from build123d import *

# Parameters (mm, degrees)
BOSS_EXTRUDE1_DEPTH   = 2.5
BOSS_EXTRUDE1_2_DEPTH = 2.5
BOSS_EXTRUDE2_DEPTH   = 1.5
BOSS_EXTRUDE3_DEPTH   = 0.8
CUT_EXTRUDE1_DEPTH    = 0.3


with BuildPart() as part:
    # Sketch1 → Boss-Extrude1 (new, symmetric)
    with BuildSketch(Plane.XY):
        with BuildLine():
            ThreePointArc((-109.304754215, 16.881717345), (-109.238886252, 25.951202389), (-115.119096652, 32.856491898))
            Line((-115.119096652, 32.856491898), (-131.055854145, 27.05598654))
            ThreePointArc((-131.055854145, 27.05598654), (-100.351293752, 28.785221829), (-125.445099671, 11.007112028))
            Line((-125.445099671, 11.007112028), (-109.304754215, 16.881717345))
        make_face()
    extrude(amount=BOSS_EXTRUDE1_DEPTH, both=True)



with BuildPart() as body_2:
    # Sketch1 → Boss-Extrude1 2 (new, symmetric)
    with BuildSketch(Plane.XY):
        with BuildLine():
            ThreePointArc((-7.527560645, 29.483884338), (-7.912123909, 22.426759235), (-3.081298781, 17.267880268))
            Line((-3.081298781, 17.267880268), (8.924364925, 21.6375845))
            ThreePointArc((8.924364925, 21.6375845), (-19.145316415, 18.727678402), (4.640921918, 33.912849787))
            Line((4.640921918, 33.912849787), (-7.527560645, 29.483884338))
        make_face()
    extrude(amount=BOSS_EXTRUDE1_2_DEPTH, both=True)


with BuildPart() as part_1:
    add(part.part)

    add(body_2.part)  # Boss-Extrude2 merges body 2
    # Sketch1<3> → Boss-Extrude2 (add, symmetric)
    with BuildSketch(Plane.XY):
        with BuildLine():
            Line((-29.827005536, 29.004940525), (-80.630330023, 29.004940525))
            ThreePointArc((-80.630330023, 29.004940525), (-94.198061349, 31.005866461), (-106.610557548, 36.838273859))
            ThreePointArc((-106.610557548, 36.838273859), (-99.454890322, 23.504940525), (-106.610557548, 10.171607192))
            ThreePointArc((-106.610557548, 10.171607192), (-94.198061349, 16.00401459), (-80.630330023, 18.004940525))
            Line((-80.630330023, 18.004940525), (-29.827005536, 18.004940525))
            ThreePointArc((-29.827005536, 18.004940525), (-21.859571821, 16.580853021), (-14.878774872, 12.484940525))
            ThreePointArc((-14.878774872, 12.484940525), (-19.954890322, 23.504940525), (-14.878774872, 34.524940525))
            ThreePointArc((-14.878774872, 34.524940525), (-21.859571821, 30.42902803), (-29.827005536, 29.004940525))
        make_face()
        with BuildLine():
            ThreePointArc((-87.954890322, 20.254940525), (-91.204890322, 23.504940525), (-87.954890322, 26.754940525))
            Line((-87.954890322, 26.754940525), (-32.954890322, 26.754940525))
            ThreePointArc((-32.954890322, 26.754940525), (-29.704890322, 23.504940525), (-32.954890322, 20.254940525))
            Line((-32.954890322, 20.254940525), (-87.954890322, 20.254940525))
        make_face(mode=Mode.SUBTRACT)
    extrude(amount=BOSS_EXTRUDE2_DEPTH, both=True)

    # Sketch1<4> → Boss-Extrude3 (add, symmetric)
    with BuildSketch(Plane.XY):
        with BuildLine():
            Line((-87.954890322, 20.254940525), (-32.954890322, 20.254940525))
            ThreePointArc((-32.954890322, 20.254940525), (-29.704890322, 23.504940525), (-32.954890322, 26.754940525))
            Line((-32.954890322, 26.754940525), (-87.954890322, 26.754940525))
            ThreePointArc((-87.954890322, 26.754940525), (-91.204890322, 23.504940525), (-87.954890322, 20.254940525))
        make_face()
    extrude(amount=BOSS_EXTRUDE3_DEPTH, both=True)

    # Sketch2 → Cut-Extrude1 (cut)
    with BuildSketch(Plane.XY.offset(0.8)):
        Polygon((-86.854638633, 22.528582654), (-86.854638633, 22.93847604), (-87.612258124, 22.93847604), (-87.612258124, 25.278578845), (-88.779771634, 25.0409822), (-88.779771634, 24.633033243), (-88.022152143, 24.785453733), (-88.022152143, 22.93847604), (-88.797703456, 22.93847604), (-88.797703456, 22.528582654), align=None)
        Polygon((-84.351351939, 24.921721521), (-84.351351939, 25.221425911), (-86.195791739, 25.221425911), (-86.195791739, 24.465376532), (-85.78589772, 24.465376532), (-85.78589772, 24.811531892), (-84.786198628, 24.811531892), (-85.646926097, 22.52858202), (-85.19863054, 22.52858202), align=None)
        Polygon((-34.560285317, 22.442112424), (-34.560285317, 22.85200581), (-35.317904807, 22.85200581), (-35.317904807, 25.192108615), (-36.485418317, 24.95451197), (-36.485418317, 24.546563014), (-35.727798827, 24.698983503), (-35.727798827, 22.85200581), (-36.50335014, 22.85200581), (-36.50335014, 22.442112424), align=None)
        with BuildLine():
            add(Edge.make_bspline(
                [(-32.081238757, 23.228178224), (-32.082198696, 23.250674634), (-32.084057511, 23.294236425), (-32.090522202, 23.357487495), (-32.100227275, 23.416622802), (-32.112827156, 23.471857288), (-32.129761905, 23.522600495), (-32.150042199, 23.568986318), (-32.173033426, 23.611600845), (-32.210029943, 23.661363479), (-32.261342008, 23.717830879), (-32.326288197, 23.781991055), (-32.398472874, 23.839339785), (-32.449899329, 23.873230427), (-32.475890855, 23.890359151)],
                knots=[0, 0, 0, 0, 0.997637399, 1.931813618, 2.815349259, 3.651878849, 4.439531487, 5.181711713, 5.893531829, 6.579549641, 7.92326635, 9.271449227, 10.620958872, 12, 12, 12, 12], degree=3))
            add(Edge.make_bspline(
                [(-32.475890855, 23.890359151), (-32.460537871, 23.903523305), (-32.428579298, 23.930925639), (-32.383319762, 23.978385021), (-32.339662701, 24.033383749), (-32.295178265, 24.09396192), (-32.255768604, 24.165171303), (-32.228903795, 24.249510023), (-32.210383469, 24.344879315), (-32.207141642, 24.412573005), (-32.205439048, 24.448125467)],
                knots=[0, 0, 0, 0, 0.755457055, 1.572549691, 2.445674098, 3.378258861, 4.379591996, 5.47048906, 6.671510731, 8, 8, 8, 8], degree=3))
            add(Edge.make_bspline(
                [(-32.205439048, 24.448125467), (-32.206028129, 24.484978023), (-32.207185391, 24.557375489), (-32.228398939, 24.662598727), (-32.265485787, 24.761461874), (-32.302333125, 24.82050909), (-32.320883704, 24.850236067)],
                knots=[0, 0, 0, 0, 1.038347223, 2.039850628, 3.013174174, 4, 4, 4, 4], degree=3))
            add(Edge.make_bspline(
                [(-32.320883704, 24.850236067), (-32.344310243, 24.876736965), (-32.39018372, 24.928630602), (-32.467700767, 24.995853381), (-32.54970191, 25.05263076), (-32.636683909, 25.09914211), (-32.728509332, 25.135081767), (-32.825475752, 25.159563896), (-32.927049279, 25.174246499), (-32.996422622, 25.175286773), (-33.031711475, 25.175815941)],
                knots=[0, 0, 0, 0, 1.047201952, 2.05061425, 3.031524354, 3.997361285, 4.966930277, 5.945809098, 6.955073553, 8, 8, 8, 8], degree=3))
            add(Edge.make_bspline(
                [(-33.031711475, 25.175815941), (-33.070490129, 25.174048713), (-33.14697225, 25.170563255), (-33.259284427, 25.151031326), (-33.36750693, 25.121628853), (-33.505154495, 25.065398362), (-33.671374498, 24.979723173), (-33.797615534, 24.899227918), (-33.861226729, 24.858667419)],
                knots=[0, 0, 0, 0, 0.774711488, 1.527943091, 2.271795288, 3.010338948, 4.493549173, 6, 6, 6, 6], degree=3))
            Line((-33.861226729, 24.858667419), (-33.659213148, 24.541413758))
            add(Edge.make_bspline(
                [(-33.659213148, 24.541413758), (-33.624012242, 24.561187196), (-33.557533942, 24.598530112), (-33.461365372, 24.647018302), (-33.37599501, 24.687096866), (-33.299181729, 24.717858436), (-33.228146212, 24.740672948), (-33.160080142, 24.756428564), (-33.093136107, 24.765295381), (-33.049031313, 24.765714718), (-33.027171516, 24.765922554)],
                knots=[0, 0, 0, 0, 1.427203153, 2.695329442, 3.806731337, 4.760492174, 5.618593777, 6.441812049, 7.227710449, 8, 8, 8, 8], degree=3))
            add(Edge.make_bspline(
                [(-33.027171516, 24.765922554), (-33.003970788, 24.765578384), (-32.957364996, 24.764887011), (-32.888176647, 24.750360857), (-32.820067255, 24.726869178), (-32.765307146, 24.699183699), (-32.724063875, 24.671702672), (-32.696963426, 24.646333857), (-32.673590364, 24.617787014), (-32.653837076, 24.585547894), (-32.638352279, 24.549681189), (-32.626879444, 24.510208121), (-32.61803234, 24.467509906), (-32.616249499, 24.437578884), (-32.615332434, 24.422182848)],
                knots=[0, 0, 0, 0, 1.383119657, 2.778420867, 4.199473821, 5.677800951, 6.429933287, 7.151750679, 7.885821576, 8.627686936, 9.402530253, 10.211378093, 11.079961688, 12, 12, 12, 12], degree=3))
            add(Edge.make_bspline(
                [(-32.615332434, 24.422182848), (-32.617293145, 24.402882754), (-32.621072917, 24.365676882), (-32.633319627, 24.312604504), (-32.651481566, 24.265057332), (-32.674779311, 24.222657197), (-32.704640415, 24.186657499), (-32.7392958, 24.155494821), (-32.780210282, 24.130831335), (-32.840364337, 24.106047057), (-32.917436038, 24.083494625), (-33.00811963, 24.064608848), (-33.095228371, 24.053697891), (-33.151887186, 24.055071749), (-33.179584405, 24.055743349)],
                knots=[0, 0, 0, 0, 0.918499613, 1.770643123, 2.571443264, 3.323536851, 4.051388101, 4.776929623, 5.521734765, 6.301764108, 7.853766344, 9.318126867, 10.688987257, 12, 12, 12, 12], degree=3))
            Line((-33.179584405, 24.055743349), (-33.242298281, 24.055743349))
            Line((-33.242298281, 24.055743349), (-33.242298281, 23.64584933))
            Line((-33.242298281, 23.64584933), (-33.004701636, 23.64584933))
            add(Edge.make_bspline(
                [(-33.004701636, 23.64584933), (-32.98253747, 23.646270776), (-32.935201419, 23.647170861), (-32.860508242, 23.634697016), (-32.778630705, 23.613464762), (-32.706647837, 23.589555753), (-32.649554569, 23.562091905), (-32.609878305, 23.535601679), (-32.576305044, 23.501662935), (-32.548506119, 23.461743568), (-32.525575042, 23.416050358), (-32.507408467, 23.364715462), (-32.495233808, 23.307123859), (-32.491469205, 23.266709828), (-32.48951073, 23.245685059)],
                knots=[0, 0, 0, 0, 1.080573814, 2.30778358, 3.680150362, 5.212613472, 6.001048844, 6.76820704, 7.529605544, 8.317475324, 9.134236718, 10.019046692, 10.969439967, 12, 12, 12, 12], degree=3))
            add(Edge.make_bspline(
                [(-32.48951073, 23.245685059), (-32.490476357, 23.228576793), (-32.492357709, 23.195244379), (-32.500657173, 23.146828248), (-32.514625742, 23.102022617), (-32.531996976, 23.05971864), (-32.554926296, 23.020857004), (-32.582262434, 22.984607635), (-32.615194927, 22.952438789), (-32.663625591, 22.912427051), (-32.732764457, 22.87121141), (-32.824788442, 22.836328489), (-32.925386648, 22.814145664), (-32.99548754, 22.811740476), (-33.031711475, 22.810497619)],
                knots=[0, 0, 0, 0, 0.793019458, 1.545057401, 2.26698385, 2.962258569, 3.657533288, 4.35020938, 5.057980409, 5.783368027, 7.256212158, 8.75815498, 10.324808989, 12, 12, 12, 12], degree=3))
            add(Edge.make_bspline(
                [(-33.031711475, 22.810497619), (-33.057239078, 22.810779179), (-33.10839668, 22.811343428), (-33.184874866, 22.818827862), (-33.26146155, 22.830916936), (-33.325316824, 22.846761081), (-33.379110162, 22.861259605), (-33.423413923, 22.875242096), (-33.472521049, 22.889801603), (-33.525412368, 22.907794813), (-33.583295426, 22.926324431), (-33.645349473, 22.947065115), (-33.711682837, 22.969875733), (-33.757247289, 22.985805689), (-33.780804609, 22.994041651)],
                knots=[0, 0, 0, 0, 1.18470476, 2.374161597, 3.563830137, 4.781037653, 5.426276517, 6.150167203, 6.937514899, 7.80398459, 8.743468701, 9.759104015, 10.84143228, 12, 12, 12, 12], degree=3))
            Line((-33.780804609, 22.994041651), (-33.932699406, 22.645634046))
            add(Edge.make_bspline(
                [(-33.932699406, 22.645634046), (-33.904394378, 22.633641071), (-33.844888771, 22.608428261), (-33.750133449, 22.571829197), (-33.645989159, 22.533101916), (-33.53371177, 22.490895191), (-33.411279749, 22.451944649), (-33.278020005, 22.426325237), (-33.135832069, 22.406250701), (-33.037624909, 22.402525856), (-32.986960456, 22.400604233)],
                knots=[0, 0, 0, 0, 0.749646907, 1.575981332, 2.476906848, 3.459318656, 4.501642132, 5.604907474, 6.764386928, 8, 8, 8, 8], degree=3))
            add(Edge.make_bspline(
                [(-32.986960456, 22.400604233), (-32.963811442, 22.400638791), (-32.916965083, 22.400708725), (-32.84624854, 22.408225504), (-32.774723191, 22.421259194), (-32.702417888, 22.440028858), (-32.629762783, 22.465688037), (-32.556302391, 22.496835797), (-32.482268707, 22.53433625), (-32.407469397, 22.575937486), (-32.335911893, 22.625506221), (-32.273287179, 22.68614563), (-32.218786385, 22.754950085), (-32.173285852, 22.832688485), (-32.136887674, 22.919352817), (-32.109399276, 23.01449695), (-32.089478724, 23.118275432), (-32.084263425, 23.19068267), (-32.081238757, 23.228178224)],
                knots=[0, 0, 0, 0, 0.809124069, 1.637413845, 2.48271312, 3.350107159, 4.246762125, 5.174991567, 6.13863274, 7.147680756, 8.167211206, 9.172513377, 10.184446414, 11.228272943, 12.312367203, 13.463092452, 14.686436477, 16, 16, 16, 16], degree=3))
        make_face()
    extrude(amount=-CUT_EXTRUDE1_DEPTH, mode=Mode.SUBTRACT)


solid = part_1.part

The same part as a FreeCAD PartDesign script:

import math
import FreeCAD as App
import Part
import Sketcher
from FreeCAD import Vector
Q = App.Units.Quantity

doc = App.newDocument("Part")
body = doc.addObject("PartDesign::Body", "Body")

sketch1 = doc.addObject("Sketcher::SketchObject", "Sketch")
body.addObject(sketch1)
sketch1.AttachmentSupport = (doc.XY_Plane, [""])
sketch1.MapMode = "FlatFace"
sketch1.addGeometry(Part.ArcOfCircle(Part.Circle(Vector(-121, 22, 0), Vector(0, 0, 1), 13), math.radians(-21), math.radians(61)), False)
sketch1.addGeometry(Part.LineSegment(Vector(-109, 17, 0), Vector(-125, 11, 0)), False)
sketch1.addGeometry(Part.ArcOfCircle(Part.Circle(Vector(-115, 24, 0), Vector(0, 0, 1), 16), math.radians(-129), math.radians(167)), False)
sketch1.addGeometry(Part.LineSegment(Vector(-131, 27, 0), Vector(-115, 33, 0)), False)
sketch1.addConstraint(Sketcher.Constraint("Coincident", 0, 1, 1, 1))
sketch1.addConstraint(Sketcher.Constraint("Coincident", 1, 2, 2, 1))
sketch1.addConstraint(Sketcher.Constraint("Coincident", 2, 2, 3, 1))
sketch1.addConstraint(Sketcher.Constraint("Coincident", 3, 2, 0, 2))
sketch1.addConstraint(Sketcher.Constraint("Parallel", 1, 3))
sketch1.addConstraint(Sketcher.Constraint("Radius", 0, 13.0))
sketch1.addConstraint(Sketcher.Constraint("Radius", 2, 16.0))
sketch1.addConstraint(Sketcher.Constraint("Angle", 1, Q("-160 deg")))
sketch1.addConstraint(Sketcher.Constraint("DistanceX", 0, 3, 2, 3, 6.0))
sketch1.addConstraint(Sketcher.Constraint("DistanceY", 0, 3, 2, 3, 2.0))
sketch1.addConstraint(Sketcher.Constraint("DistanceX", 1, 2, -1, 1, 125.4451))
sketch1.addConstraint(Sketcher.Constraint("DistanceX", 2, 2, 0, 1, 21.7511))
sketch1.addConstraint(Sketcher.Constraint("DistanceX", 0, 3, -1, 1, 121.45489))
sketch1.addConstraint(Sketcher.Constraint("DistanceY", -1, 1, 0, 3, 21.504941))
pad1 = doc.addObject("PartDesign::Pad", "Pad")
body.addObject(pad1)
pad1.Profile = sketch1
pad1.Length = 5
pad1.Midplane = True
body2 = doc.addObject("PartDesign::Body", "Body001")

sketch2 = doc.addObject("Sketcher::SketchObject", "Sketch001")
body2.addObject(sketch2)
sketch2.AttachmentSupport = (doc.getObject("XY_Plane001"), [""])
sketch2.MapMode = "FlatFace"
sketch2.addGeometry(Part.ArcOfCircle(Part.Circle(Vector(1, 26, 0), Vector(0, 0, 1), 9), math.radians(154), math.radians(246)), False)
sketch2.addGeometry(Part.LineSegment(Vector(-8, 29, 0), Vector(5, 34, 0)), False)
sketch2.addGeometry(Part.ArcOfCircle(Part.Circle(Vector(-5, 24, 0), Vector(0, 0, 1), 14), math.radians(46), math.radians(353)), False)
sketch2.addGeometry(Part.LineSegment(Vector(9, 22, 0), Vector(-3, 17, 0)), False)
sketch2.addConstraint(Sketcher.Constraint("Coincident", 0, 1, 1, 1))
sketch2.addConstraint(Sketcher.Constraint("Coincident", 1, 2, 2, 1))
sketch2.addConstraint(Sketcher.Constraint("Coincident", 2, 2, 3, 1))
sketch2.addConstraint(Sketcher.Constraint("Coincident", 3, 2, 0, 2))
sketch2.addConstraint(Sketcher.Constraint("Parallel", 1, 3))
sketch2.addConstraint(Sketcher.Constraint("Radius", 0, 9.0))
sketch2.addConstraint(Sketcher.Constraint("Radius", 2, 14.5))
sketch2.addConstraint(Sketcher.Constraint("Angle", 1, Q("20 deg")))
sketch2.addConstraint(Sketcher.Constraint("DistanceX", 2, 3, 0, 3, 6.0))
sketch2.addConstraint(Sketcher.Constraint("DistanceY", 2, 3, 0, 3, 2.0))
sketch2.addConstraint(Sketcher.Constraint("DistanceX", 3, 2, -1, 1, 3.081299))
sketch2.addConstraint(Sketcher.Constraint("DistanceY", 2, 2, 0, 1, 7.8463))
sketch2.addConstraint(Sketcher.Constraint("Distance", 1, 12.949429))
sketch2.addConstraint(Sketcher.Constraint("DistanceY", -1, 1, 0, 3, 25.504941))
pad2 = doc.addObject("PartDesign::Pad", "Pad001")
body2.addObject(pad2)
pad2.Profile = sketch2
pad2.Length = 5
pad2.Midplane = True
body.AllowCompound = True
doc.recompute()

boolean = doc.addObject("PartDesign::Boolean", "Boolean")
body.addObject(boolean)
boolean.Type = "Fuse"
boolean.addObjects([body2])

sketch3 = doc.addObject("Sketcher::SketchObject", "Sketch002")
body.addObject(sketch3)
sketch3.AttachmentSupport = (doc.XY_Plane, [""])
sketch3.MapMode = "FlatFace"
sketch3.addGeometry(Part.LineSegment(Vector(-29.8, 29, 0), Vector(-80.6, 29, 0)), False)
sketch3.addGeometry(Part.ArcOfCircle(Part.Circle(Vector(-80.6, 76, 0), Vector(0, 0, 1), 47), math.radians(-124), math.radians(-90)), False)
sketch3.addGeometry(Part.ArcOfCircle(Part.Circle(Vector(-115.5, 23.5, 0), Vector(0, 0, 1), 16), math.radians(-56), math.radians(56)), False)
sketch3.addGeometry(Part.ArcOfCircle(Part.Circle(Vector(-80.6, -29, 0), Vector(0, 0, 1), 47), math.radians(90), math.radians(124)), False)
sketch3.addGeometry(Part.LineSegment(Vector(-80.6, 18, 0), Vector(-29.8, 18, 0)), False)
sketch3.addGeometry(Part.ArcOfCircle(Part.Circle(Vector(-29.8, -5, 0), Vector(0, 0, 1), 23), math.radians(49), math.radians(90)), False)
sketch3.addGeometry(Part.ArcOfCircle(Part.Circle(Vector(-5.5, 23.5, 0), Vector(0, 0, 1), 14.5), math.radians(131), math.radians(229)), False)
sketch3.addGeometry(Part.ArcOfCircle(Part.Circle(Vector(-29.8, 52, 0), Vector(0, 0, 1), 23), math.radians(-90), math.radians(-49)), False)
sketch3.addGeometry(Part.LineSegment(Vector(-33, 20.3, 0), Vector(-88, 20.3, 0)), False)
sketch3.addGeometry(Part.ArcOfCircle(Part.Circle(Vector(-88, 23.5, 0), Vector(0, 0, 1), 3.2), math.radians(90), math.radians(270)), False)
sketch3.addGeometry(Part.LineSegment(Vector(-88, 26.8, 0), Vector(-33, 26.8, 0)), False)
sketch3.addGeometry(Part.ArcOfCircle(Part.Circle(Vector(-33, 23.5, 0), Vector(0, 0, 1), 3.2), math.radians(-90), math.radians(90)), False)
sketch3.addConstraint(Sketcher.Constraint("Tangent", 0, 2, 1, 2))
sketch3.addConstraint(Sketcher.Constraint("Tangent", 1, 1, 2, 2))
sketch3.addConstraint(Sketcher.Constraint("Tangent", 2, 1, 3, 2))
sketch3.addConstraint(Sketcher.Constraint("Tangent", 3, 1, 4, 1))
sketch3.addConstraint(Sketcher.Constraint("Tangent", 4, 2, 5, 2))
sketch3.addConstraint(Sketcher.Constraint("Tangent", 5, 1, 6, 2))
sketch3.addConstraint(Sketcher.Constraint("Tangent", 6, 1, 7, 2))
sketch3.addConstraint(Sketcher.Constraint("Tangent", 7, 1, 0, 1))
sketch3.addConstraint(Sketcher.Constraint("Tangent", 8, 2, 9, 2))
sketch3.addConstraint(Sketcher.Constraint("Tangent", 9, 1, 10, 1))
sketch3.addConstraint(Sketcher.Constraint("Tangent", 10, 2, 11, 2))
sketch3.addConstraint(Sketcher.Constraint("Tangent", 11, 1, 8, 1))
sketch3.addConstraint(Sketcher.Constraint("Horizontal", 0))
sketch3.addConstraint(Sketcher.Constraint("Horizontal", 4))
sketch3.addConstraint(Sketcher.Constraint("Horizontal", 8))
sketch3.addConstraint(Sketcher.Constraint("Horizontal", 10))
sketch3.addConstraint(Sketcher.Constraint("Equal", 1, 3))
sketch3.addConstraint(Sketcher.Constraint("Equal", 5, 7))
sketch3.addConstraint(Sketcher.Constraint("Horizontal", 2, 3, 6, 3))
sketch3.addConstraint(Sketcher.Constraint("Horizontal", 6, 3, 9, 3))
sketch3.addConstraint(Sketcher.Constraint("Vertical", 1, 3, 3, 3))
sketch3.addConstraint(Sketcher.Constraint("Radius", 1, 47.0))
sketch3.addConstraint(Sketcher.Constraint("Radius", 2, 16.0))
sketch3.addConstraint(Sketcher.Constraint("Radius", 5, 23.0))
sketch3.addConstraint(Sketcher.Constraint("Radius", 6, 14.5))
sketch3.addConstraint(Sketcher.Constraint("DistanceX", 8, 2, 8, 1, 55.0))
sketch3.addConstraint(Sketcher.Constraint("Radius", 9, 3.25))
sketch3.addConstraint(Sketcher.Constraint("DistanceY", 3, 3, 1, 3, 105.0))
sketch3.addConstraint(Sketcher.Constraint("DistanceX", 2, 3, 6, 3, 110.0))
sketch3.addConstraint(Sketcher.Constraint("DistanceX", 2, 3, 9, 3, 27.5))
sketch3.addConstraint(Sketcher.Constraint("DistanceX", 1, 3, -1, 1, 80.63033))
sketch3.addConstraint(Sketcher.Constraint("DistanceY", -1, 1, 1, 3, 76.004941))
pad3 = doc.addObject("PartDesign::Pad", "Pad002")
body.addObject(pad3)
pad3.Profile = sketch3
pad3.Length = 3
pad3.Midplane = True

sketch4 = doc.addObject("Sketcher::SketchObject", "Sketch003")
body.addObject(sketch4)
sketch4.AttachmentSupport = (doc.XY_Plane, [""])
sketch4.MapMode = "FlatFace"
sketch4.addGeometry(Part.LineSegment(Vector(-88, 20.3, 0), Vector(-33, 20.3, 0)), False)
sketch4.addGeometry(Part.ArcOfCircle(Part.Circle(Vector(-33, 23.5, 0), Vector(0, 0, 1), 3.2), math.radians(-90), math.radians(90)), False)
sketch4.addGeometry(Part.LineSegment(Vector(-33, 26.8, 0), Vector(-88, 26.8, 0)), False)
sketch4.addGeometry(Part.ArcOfCircle(Part.Circle(Vector(-88, 23.5, 0), Vector(0, 0, 1), 3.2), math.radians(90), math.radians(270)), False)
sketch4.addConstraint(Sketcher.Constraint("Tangent", 0, 2, 1, 1))
sketch4.addConstraint(Sketcher.Constraint("Tangent", 1, 2, 2, 1))
sketch4.addConstraint(Sketcher.Constraint("Tangent", 2, 2, 3, 1))
sketch4.addConstraint(Sketcher.Constraint("Tangent", 3, 2, 0, 1))
sketch4.addConstraint(Sketcher.Constraint("Horizontal", 0))
sketch4.addConstraint(Sketcher.Constraint("Horizontal", 2))
sketch4.addConstraint(Sketcher.Constraint("DistanceX", 0, 1, 0, 2, 55.0))
sketch4.addConstraint(Sketcher.Constraint("Radius", 1, 3.25))
sketch4.addConstraint(Sketcher.Constraint("DistanceX", 1, 3, -1, 1, 32.95489))
sketch4.addConstraint(Sketcher.Constraint("DistanceY", -1, 1, 1, 3, 23.504941))
pad4 = doc.addObject("PartDesign::Pad", "Pad003")
body.addObject(pad4)
pad4.Profile = sketch4
pad4.Length = 1.6
pad4.Midplane = True

sketch5 = doc.addObject("Sketcher::SketchObject", "Sketch004")
body.addObject(sketch5)
sketch5.AttachmentSupport = (doc.XY_Plane, [""])
sketch5.MapMode = "FlatFace"
sketch5.AttachmentOffset = App.Placement(Vector(0, 0, 0.8), App.Rotation())
sketch5.addGeometry(Part.LineSegment(Vector(-86.854639, 22.528583, 0), Vector(-86.854639, 22.938476, 0)), False)
sketch5.addGeometry(Part.LineSegment(Vector(-86.854639, 22.938476, 0), Vector(-87.612258, 22.938476, 0)), False)
sketch5.addGeometry(Part.LineSegment(Vector(-87.612258, 22.938476, 0), Vector(-87.612258, 25.278579, 0)), False)
sketch5.addGeometry(Part.LineSegment(Vector(-87.612258, 25.278579, 0), Vector(-88.779772, 25.040982, 0)), False)
sketch5.addGeometry(Part.LineSegment(Vector(-88.779772, 25.040982, 0), Vector(-88.779772, 24.633033, 0)), False)
sketch5.addGeometry(Part.LineSegment(Vector(-88.779772, 24.633033, 0), Vector(-88.022152, 24.785454, 0)), False)
sketch5.addGeometry(Part.LineSegment(Vector(-88.022152, 24.785454, 0), Vector(-88.022152, 22.938476, 0)), False)
sketch5.addGeometry(Part.LineSegment(Vector(-88.022152, 22.938476, 0), Vector(-88.797703, 22.938476, 0)), False)
sketch5.addGeometry(Part.LineSegment(Vector(-88.797703, 22.938476, 0), Vector(-88.797703, 22.528583, 0)), False)
sketch5.addGeometry(Part.LineSegment(Vector(-88.797703, 22.528583, 0), Vector(-86.854639, 22.528583, 0)), False)
sketch5.addGeometry(Part.LineSegment(Vector(-84.351352, 24.921722, 0), Vector(-84.351352, 25.221426, 0)), False)
sketch5.addGeometry(Part.LineSegment(Vector(-84.351352, 25.221426, 0), Vector(-86.195792, 25.221426, 0)), False)
sketch5.addGeometry(Part.LineSegment(Vector(-86.195792, 25.221426, 0), Vector(-86.195792, 24.465377, 0)), False)
sketch5.addGeometry(Part.LineSegment(Vector(-86.195792, 24.465377, 0), Vector(-85.785898, 24.465377, 0)), False)
sketch5.addGeometry(Part.LineSegment(Vector(-85.785898, 24.465377, 0), Vector(-85.785898, 24.811532, 0)), False)
sketch5.addGeometry(Part.LineSegment(Vector(-85.785898, 24.811532, 0), Vector(-84.786199, 24.811532, 0)), False)
sketch5.addGeometry(Part.LineSegment(Vector(-84.786199, 24.811532, 0), Vector(-85.646926, 22.528582, 0)), False)
sketch5.addGeometry(Part.LineSegment(Vector(-85.646926, 22.528582, 0), Vector(-85.198631, 22.528582, 0)), False)
sketch5.addGeometry(Part.LineSegment(Vector(-85.198631, 22.528582, 0), Vector(-84.351352, 24.921722, 0)), False)
sketch5.addGeometry(Part.LineSegment(Vector(-34.560285, 22.442112, 0), Vector(-34.560285, 22.852006, 0)), False)
sketch5.addGeometry(Part.LineSegment(Vector(-34.560285, 22.852006, 0), Vector(-35.317905, 22.852006, 0)), False)
sketch5.addGeometry(Part.LineSegment(Vector(-35.317905, 22.852006, 0), Vector(-35.317905, 25.192109, 0)), False)
sketch5.addGeometry(Part.LineSegment(Vector(-35.317905, 25.192109, 0), Vector(-36.485418, 24.954512, 0)), False)
sketch5.addGeometry(Part.LineSegment(Vector(-36.485418, 24.954512, 0), Vector(-36.485418, 24.546563, 0)), False)
sketch5.addGeometry(Part.LineSegment(Vector(-36.485418, 24.546563, 0), Vector(-35.727799, 24.698984, 0)), False)
sketch5.addGeometry(Part.LineSegment(Vector(-35.727799, 24.698984, 0), Vector(-35.727799, 22.852006, 0)), False)
sketch5.addGeometry(Part.LineSegment(Vector(-35.727799, 22.852006, 0), Vector(-36.50335, 22.852006, 0)), False)
sketch5.addGeometry(Part.LineSegment(Vector(-36.50335, 22.852006, 0), Vector(-36.50335, 22.442112, 0)), False)
sketch5.addGeometry(Part.LineSegment(Vector(-36.50335, 22.442112, 0), Vector(-34.560285, 22.442112, 0)), False)
sketch5.addGeometry(Part.BSplineCurve([Vector(-32.081239, 23.228178, 0), Vector(-32.082199, 23.250675, 0), Vector(-32.084058, 23.294236, 0), Vector(-32.090522, 23.357487, 0), Vector(-32.100227, 23.416623, 0), Vector(-32.112827, 23.471857, 0), Vector(-32.129762, 23.5226, 0), Vector(-32.150042, 23.568986, 0), Vector(-32.173033, 23.611601, 0), Vector(-32.21003, 23.661363, 0), Vector(-32.261342, 23.717831, 0), Vector(-32.326288, 23.781991, 0), Vector(-32.398473, 23.83934, 0), Vector(-32.449899, 23.87323, 0), Vector(-32.475891, 23.890359, 0)], [4, 1, 1, 1, 1, 1, 1, 1, 1, 1, 1, 1, 4], [0, 0.997637399, 1.931813618, 2.815349259, 3.651878849, 4.439531487, 5.181711713, 5.893531829, 6.579549641, 7.92326635, 9.271449227, 10.620958872, 12], False, 3, [1, 1, 1, 1, 1, 1, 1, 1, 1, 1, 1, 1, 1, 1, 1], False), False)
sketch5.addGeometry(Part.BSplineCurve([Vector(-32.475891, 23.890359, 0), Vector(-32.460538, 23.903523, 0), Vector(-32.428579, 23.930926, 0), Vector(-32.38332, 23.978385, 0), Vector(-32.339663, 24.033384, 0), Vector(-32.295178, 24.093962, 0), Vector(-32.255769, 24.165171, 0), Vector(-32.228904, 24.24951, 0), Vector(-32.210383, 24.344879, 0), Vector(-32.207142, 24.412573, 0), Vector(-32.205439, 24.448125, 0)], [4, 1, 1, 1, 1, 1, 1, 1, 4], [0, 0.755457055, 1.572549691, 2.445674098, 3.378258861, 4.379591996, 5.47048906, 6.671510731, 8], False, 3, [1, 1, 1, 1, 1, 1, 1, 1, 1, 1, 1], False), False)
sketch5.addGeometry(Part.BSplineCurve([Vector(-32.205439, 24.448125, 0), Vector(-32.206028, 24.484978, 0), Vector(-32.207185, 24.557375, 0), Vector(-32.228399, 24.662599, 0), Vector(-32.265486, 24.761462, 0), Vector(-32.302333, 24.820509, 0), Vector(-32.320884, 24.850236, 0)], [4, 1, 1, 1, 4], [0, 1.038347223, 2.039850628, 3.013174174, 4], False, 3, [1, 1, 1, 1, 1, 1, 1], False), False)
sketch5.addGeometry(Part.BSplineCurve([Vector(-32.320884, 24.850236, 0), Vector(-32.34431, 24.876737, 0), Vector(-32.390184, 24.928631, 0), Vector(-32.467701, 24.995853, 0), Vector(-32.549702, 25.052631, 0), Vector(-32.636684, 25.099142, 0), Vector(-32.728509, 25.135082, 0), Vector(-32.825476, 25.159564, 0), Vector(-32.927049, 25.174246, 0), Vector(-32.996423, 25.175287, 0), Vector(-33.031711, 25.175816, 0)], [4, 1, 1, 1, 1, 1, 1, 1, 4], [0, 1.047201952, 2.05061425, 3.031524354, 3.997361285, 4.966930277, 5.945809098, 6.955073553, 8], False, 3, [1, 1, 1, 1, 1, 1, 1, 1, 1, 1, 1], False), False)
sketch5.addGeometry(Part.BSplineCurve([Vector(-33.031711, 25.175816, 0), Vector(-33.07049, 25.174049, 0), Vector(-33.146972, 25.170563, 0), Vector(-33.259284, 25.151031, 0), Vector(-33.367507, 25.121629, 0), Vector(-33.505154, 25.065398, 0), Vector(-33.671374, 24.979723, 0), Vector(-33.797616, 24.899228, 0), Vector(-33.861227, 24.858667, 0)], [4, 1, 1, 1, 1, 1, 4], [0, 0.774711488, 1.527943091, 2.271795288, 3.010338948, 4.493549173, 6], False, 3, [1, 1, 1, 1, 1, 1, 1, 1, 1], False), False)
sketch5.addGeometry(Part.LineSegment(Vector(-33.861227, 24.858667, 0), Vector(-33.659213, 24.541414, 0)), False)
sketch5.addGeometry(Part.BSplineCurve([Vector(-33.659213, 24.541414, 0), Vector(-33.624012, 24.561187, 0), Vector(-33.557534, 24.59853, 0), Vector(-33.461365, 24.647018, 0), Vector(-33.375995, 24.687097, 0), Vector(-33.299182, 24.717858, 0), Vector(-33.228146, 24.740673, 0), Vector(-33.16008, 24.756429, 0), Vector(-33.093136, 24.765295, 0), Vector(-33.049031, 24.765715, 0), Vector(-33.027172, 24.765923, 0)], [4, 1, 1, 1, 1, 1, 1, 1, 4], [0, 1.427203153, 2.695329442, 3.806731337, 4.760492174, 5.618593777, 6.441812049, 7.227710449, 8], False, 3, [1, 1, 1, 1, 1, 1, 1, 1, 1, 1, 1], False), False)
sketch5.addGeometry(Part.BSplineCurve([Vector(-33.027172, 24.765923, 0), Vector(-33.003971, 24.765578, 0), Vector(-32.957365, 24.764887, 0), Vector(-32.888177, 24.750361, 0), Vector(-32.820067, 24.726869, 0), Vector(-32.765307, 24.699184, 0), Vector(-32.724064, 24.671703, 0), Vector(-32.696963, 24.646334, 0), Vector(-32.67359, 24.617787, 0), Vector(-32.653837, 24.585548, 0), Vector(-32.638352, 24.549681, 0), Vector(-32.626879, 24.510208, 0), Vector(-32.618032, 24.46751, 0), Vector(-32.616249, 24.437579, 0), Vector(-32.615332, 24.422183, 0)], [4, 1, 1, 1, 1, 1, 1, 1, 1, 1, 1, 1, 4], [0, 1.383119657, 2.778420867, 4.199473821, 5.677800951, 6.429933287, 7.151750679, 7.885821576, 8.627686936, 9.402530253, 10.211378093, 11.079961688, 12], False, 3, [1, 1, 1, 1, 1, 1, 1, 1, 1, 1, 1, 1, 1, 1, 1], False), False)
sketch5.addGeometry(Part.BSplineCurve([Vector(-32.615332, 24.422183, 0), Vector(-32.617293, 24.402883, 0), Vector(-32.621073, 24.365677, 0), Vector(-32.63332, 24.312605, 0), Vector(-32.651482, 24.265057, 0), Vector(-32.674779, 24.222657, 0), Vector(-32.70464, 24.186657, 0), Vector(-32.739296, 24.155495, 0), Vector(-32.78021, 24.130831, 0), Vector(-32.840364, 24.106047, 0), Vector(-32.917436, 24.083495, 0), Vector(-33.00812, 24.064609, 0), Vector(-33.095228, 24.053698, 0), Vector(-33.151887, 24.055072, 0), Vector(-33.179584, 24.055743, 0)], [4, 1, 1, 1, 1, 1, 1, 1, 1, 1, 1, 1, 4], [0, 0.918499613, 1.770643123, 2.571443264, 3.323536851, 4.051388101, 4.776929623, 5.521734765, 6.301764108, 7.853766344, 9.318126867, 10.688987257, 12], False, 3, [1, 1, 1, 1, 1, 1, 1, 1, 1, 1, 1, 1, 1, 1, 1], False), False)
sketch5.addGeometry(Part.LineSegment(Vector(-33.179584, 24.055743, 0), Vector(-33.242298, 24.055743, 0)), False)
sketch5.addGeometry(Part.LineSegment(Vector(-33.242298, 24.055743, 0), Vector(-33.242298, 23.645849, 0)), False)
sketch5.addGeometry(Part.LineSegment(Vector(-33.242298, 23.645849, 0), Vector(-33.004702, 23.645849, 0)), False)
sketch5.addGeometry(Part.BSplineCurve([Vector(-33.004702, 23.645849, 0), Vector(-32.982537, 23.646271, 0), Vector(-32.935201, 23.647171, 0), Vector(-32.860508, 23.634697, 0), Vector(-32.778631, 23.613465, 0), Vector(-32.706648, 23.589556, 0), Vector(-32.649555, 23.562092, 0), Vector(-32.609878, 23.535602, 0), Vector(-32.576305, 23.501663, 0), Vector(-32.548506, 23.461744, 0), Vector(-32.525575, 23.41605, 0), Vector(-32.507408, 23.364715, 0), Vector(-32.495234, 23.307124, 0), Vector(-32.491469, 23.26671, 0), Vector(-32.489511, 23.245685, 0)], [4, 1, 1, 1, 1, 1, 1, 1, 1, 1, 1, 1, 4], [0, 1.080573814, 2.30778358, 3.680150362, 5.212613472, 6.001048844, 6.76820704, 7.529605544, 8.317475324, 9.134236718, 10.019046692, 10.969439967, 12], False, 3, [1, 1, 1, 1, 1, 1, 1, 1, 1, 1, 1, 1, 1, 1, 1], False), False)
sketch5.addGeometry(Part.BSplineCurve([Vector(-32.489511, 23.245685, 0), Vector(-32.490476, 23.228577, 0), Vector(-32.492358, 23.195244, 0), Vector(-32.500657, 23.146828, 0), Vector(-32.514626, 23.102023, 0), Vector(-32.531997, 23.059719, 0), Vector(-32.554926, 23.020857, 0), Vector(-32.582262, 22.984608, 0), Vector(-32.615195, 22.952439, 0), Vector(-32.663626, 22.912427, 0), Vector(-32.732764, 22.871211, 0), Vector(-32.824788, 22.836328, 0), Vector(-32.925387, 22.814146, 0), Vector(-32.995488, 22.81174, 0), Vector(-33.031711, 22.810498, 0)], [4, 1, 1, 1, 1, 1, 1, 1, 1, 1, 1, 1, 4], [0, 0.793019458, 1.545057401, 2.26698385, 2.962258569, 3.657533288, 4.35020938, 5.057980409, 5.783368027, 7.256212158, 8.75815498, 10.324808989, 12], False, 3, [1, 1, 1, 1, 1, 1, 1, 1, 1, 1, 1, 1, 1, 1, 1], False), False)
sketch5.addGeometry(Part.BSplineCurve([Vector(-33.031711, 22.810498, 0), Vector(-33.057239, 22.810779, 0), Vector(-33.108397, 22.811343, 0), Vector(-33.184875, 22.818828, 0), Vector(-33.261462, 22.830917, 0), Vector(-33.325317, 22.846761, 0), Vector(-33.37911, 22.86126, 0), Vector(-33.423414, 22.875242, 0), Vector(-33.472521, 22.889802, 0), Vector(-33.525412, 22.907795, 0), Vector(-33.583295, 22.926324, 0), Vector(-33.645349, 22.947065, 0), Vector(-33.711683, 22.969876, 0), Vector(-33.757247, 22.985806, 0), Vector(-33.780805, 22.994042, 0)], [4, 1, 1, 1, 1, 1, 1, 1, 1, 1, 1, 1, 4], [0, 1.18470476, 2.374161597, 3.563830137, 4.781037653, 5.426276517, 6.150167203, 6.937514899, 7.80398459, 8.743468701, 9.759104015, 10.84143228, 12], False, 3, [1, 1, 1, 1, 1, 1, 1, 1, 1, 1, 1, 1, 1, 1, 1], False), False)
sketch5.addGeometry(Part.LineSegment(Vector(-33.780805, 22.994042, 0), Vector(-33.932699, 22.645634, 0)), False)
sketch5.addGeometry(Part.BSplineCurve([Vector(-33.932699, 22.645634, 0), Vector(-33.904394, 22.633641, 0), Vector(-33.844889, 22.608428, 0), Vector(-33.750133, 22.571829, 0), Vector(-33.645989, 22.533102, 0), Vector(-33.533712, 22.490895, 0), Vector(-33.41128, 22.451945, 0), Vector(-33.27802, 22.426325, 0), Vector(-33.135832, 22.406251, 0), Vector(-33.037625, 22.402526, 0), Vector(-32.98696, 22.400604, 0)], [4, 1, 1, 1, 1, 1, 1, 1, 4], [0, 0.749646907, 1.575981332, 2.476906848, 3.459318656, 4.501642132, 5.604907474, 6.764386928, 8], False, 3, [1, 1, 1, 1, 1, 1, 1, 1, 1, 1, 1], False), False)
sketch5.addGeometry(Part.BSplineCurve([Vector(-32.98696, 22.400604, 0), Vector(-32.963811, 22.400639, 0), Vector(-32.916965, 22.400709, 0), Vector(-32.846249, 22.408226, 0), Vector(-32.774723, 22.421259, 0), Vector(-32.702418, 22.440029, 0), Vector(-32.629763, 22.465688, 0), Vector(-32.556302, 22.496836, 0), Vector(-32.482269, 22.534336, 0), Vector(-32.407469, 22.575937, 0), Vector(-32.335912, 22.625506, 0), Vector(-32.273287, 22.686146, 0), Vector(-32.218786, 22.75495, 0), Vector(-32.173286, 22.832688, 0), Vector(-32.136888, 22.919353, 0), Vector(-32.109399, 23.014497, 0), Vector(-32.089479, 23.118275, 0), Vector(-32.084263, 23.190683, 0), Vector(-32.081239, 23.228178, 0)], [4, 1, 1, 1, 1, 1, 1, 1, 1, 1, 1, 1, 1, 1, 1, 1, 4], [0, 0.809124069, 1.637413845, 2.48271312, 3.350107159, 4.246762125, 5.174991567, 6.13863274, 7.147680756, 8.167211206, 9.172513377, 10.184446414, 11.228272943, 12.312367203, 13.463092452, 14.686436477, 16], False, 3, [1, 1, 1, 1, 1, 1, 1, 1, 1, 1, 1, 1, 1, 1, 1, 1, 1, 1, 1], False), False)
sketch5.addConstraint(Sketcher.Constraint("Block", 29))
sketch5.addConstraint(Sketcher.Constraint("Block", 30))
sketch5.addConstraint(Sketcher.Constraint("Block", 31))
sketch5.addConstraint(Sketcher.Constraint("Block", 32))
sketch5.addConstraint(Sketcher.Constraint("Block", 33))
sketch5.addConstraint(Sketcher.Constraint("Block", 35))
sketch5.addConstraint(Sketcher.Constraint("Block", 36))
sketch5.addConstraint(Sketcher.Constraint("Block", 37))
sketch5.addConstraint(Sketcher.Constraint("Block", 41))
sketch5.addConstraint(Sketcher.Constraint("Block", 42))
sketch5.addConstraint(Sketcher.Constraint("Block", 43))
sketch5.addConstraint(Sketcher.Constraint("Block", 45))
sketch5.addConstraint(Sketcher.Constraint("Block", 46))
sketch5.addConstraint(Sketcher.Constraint("Coincident", 0, 2, 1, 1))
sketch5.addConstraint(Sketcher.Constraint("Coincident", 1, 2, 2, 1))
sketch5.addConstraint(Sketcher.Constraint("Coincident", 2, 2, 3, 1))
sketch5.addConstraint(Sketcher.Constraint("Coincident", 3, 2, 4, 1))
sketch5.addConstraint(Sketcher.Constraint("Coincident", 4, 2, 5, 1))
sketch5.addConstraint(Sketcher.Constraint("Coincident", 5, 2, 6, 1))
sketch5.addConstraint(Sketcher.Constraint("Coincident", 6, 2, 7, 1))
sketch5.addConstraint(Sketcher.Constraint("Coincident", 7, 2, 8, 1))
sketch5.addConstraint(Sketcher.Constraint("Coincident", 8, 2, 9, 1))
sketch5.addConstraint(Sketcher.Constraint("Coincident", 9, 2, 0, 1))
sketch5.addConstraint(Sketcher.Constraint("Coincident", 10, 2, 11, 1))
sketch5.addConstraint(Sketcher.Constraint("Coincident", 11, 2, 12, 1))
sketch5.addConstraint(Sketcher.Constraint("Coincident", 12, 2, 13, 1))
sketch5.addConstraint(Sketcher.Constraint("Coincident", 13, 2, 14, 1))
sketch5.addConstraint(Sketcher.Constraint("Coincident", 14, 2, 15, 1))
sketch5.addConstraint(Sketcher.Constraint("Coincident", 15, 2, 16, 1))
sketch5.addConstraint(Sketcher.Constraint("Coincident", 16, 2, 17, 1))
sketch5.addConstraint(Sketcher.Constraint("Coincident", 17, 2, 18, 1))
sketch5.addConstraint(Sketcher.Constraint("Coincident", 18, 2, 10, 1))
sketch5.addConstraint(Sketcher.Constraint("Coincident", 19, 2, 20, 1))
sketch5.addConstraint(Sketcher.Constraint("Coincident", 20, 2, 21, 1))
sketch5.addConstraint(Sketcher.Constraint("Coincident", 21, 2, 22, 1))
sketch5.addConstraint(Sketcher.Constraint("Coincident", 22, 2, 23, 1))
sketch5.addConstraint(Sketcher.Constraint("Coincident", 23, 2, 24, 1))
sketch5.addConstraint(Sketcher.Constraint("Coincident", 24, 2, 25, 1))
sketch5.addConstraint(Sketcher.Constraint("Coincident", 25, 2, 26, 1))
sketch5.addConstraint(Sketcher.Constraint("Coincident", 26, 2, 27, 1))
sketch5.addConstraint(Sketcher.Constraint("Coincident", 27, 2, 28, 1))
sketch5.addConstraint(Sketcher.Constraint("Coincident", 28, 2, 19, 1))
sketch5.addConstraint(Sketcher.Constraint("Coincident", 33, 2, 34, 1))
sketch5.addConstraint(Sketcher.Constraint("Coincident", 34, 2, 35, 1))
sketch5.addConstraint(Sketcher.Constraint("Coincident", 37, 2, 38, 1))
sketch5.addConstraint(Sketcher.Constraint("Coincident", 38, 2, 39, 1))
sketch5.addConstraint(Sketcher.Constraint("Coincident", 39, 2, 40, 1))
sketch5.addConstraint(Sketcher.Constraint("Coincident", 40, 2, 41, 1))
sketch5.addConstraint(Sketcher.Constraint("Coincident", 43, 2, 44, 1))
sketch5.addConstraint(Sketcher.Constraint("Coincident", 44, 2, 45, 1))
sketch5.addConstraint(Sketcher.Constraint("Vertical", 0))
sketch5.addConstraint(Sketcher.Constraint("Horizontal", 1))
sketch5.addConstraint(Sketcher.Constraint("Vertical", 2))
sketch5.addConstraint(Sketcher.Constraint("Vertical", 4))
sketch5.addConstraint(Sketcher.Constraint("Vertical", 6))
sketch5.addConstraint(Sketcher.Constraint("Horizontal", 7))
sketch5.addConstraint(Sketcher.Constraint("Vertical", 8))
sketch5.addConstraint(Sketcher.Constraint("Horizontal", 9))
sketch5.addConstraint(Sketcher.Constraint("Vertical", 10))
sketch5.addConstraint(Sketcher.Constraint("Horizontal", 11))
sketch5.addConstraint(Sketcher.Constraint("Vertical", 12))
sketch5.addConstraint(Sketcher.Constraint("Horizontal", 13))
sketch5.addConstraint(Sketcher.Constraint("Vertical", 14))
sketch5.addConstraint(Sketcher.Constraint("Horizontal", 15))
sketch5.addConstraint(Sketcher.Constraint("Horizontal", 17))
sketch5.addConstraint(Sketcher.Constraint("Vertical", 19))
sketch5.addConstraint(Sketcher.Constraint("Horizontal", 20))
sketch5.addConstraint(Sketcher.Constraint("Vertical", 21))
sketch5.addConstraint(Sketcher.Constraint("Vertical", 23))
sketch5.addConstraint(Sketcher.Constraint("Vertical", 25))
sketch5.addConstraint(Sketcher.Constraint("Horizontal", 26))
sketch5.addConstraint(Sketcher.Constraint("Vertical", 27))
sketch5.addConstraint(Sketcher.Constraint("Horizontal", 28))
sketch5.addConstraint(Sketcher.Constraint("Horizontal", 38))
sketch5.addConstraint(Sketcher.Constraint("Vertical", 39))
sketch5.addConstraint(Sketcher.Constraint("Horizontal", 40))
sketch5.addConstraint(Sketcher.Constraint("DistanceX", 15, 1, 15, 2, 0.999699))
sketch5.addConstraint(Sketcher.Constraint("Distance", 5, 0.7728))
sketch5.addConstraint(Sketcher.Constraint("Distance", 18, 2.5387))
sketch5.addConstraint(Sketcher.Constraint("Distance", 24, 0.7728))
sketch5.addConstraint(Sketcher.Constraint("DistanceX", 1, 2, 1, 1, 0.757619))
sketch5.addConstraint(Sketcher.Constraint("DistanceX", 7, 2, 7, 1, 0.775551))
sketch5.addConstraint(Sketcher.Constraint("DistanceX", 11, 2, 11, 1, 1.84444))
sketch5.addConstraint(Sketcher.Constraint("DistanceX", 20, 2, 20, 1, 0.757619))
sketch5.addConstraint(Sketcher.Constraint("DistanceX", 26, 2, 26, 1, 0.775551))
sketch5.addConstraint(Sketcher.Constraint("DistanceY", 4, 2, 4, 1, 0.407949))
sketch5.addConstraint(Sketcher.Constraint("DistanceY", 12, 2, 12, 1, 0.756049))
sketch5.addConstraint(Sketcher.Constraint("DistanceY", 23, 2, 23, 1, 0.407949))
sketch5.addConstraint(Sketcher.Constraint("DistanceX", 15, 2, -1, 1, 84.786199))
sketch5.addConstraint(Sketcher.Constraint("DistanceX", 24, 2, -1, 1, 35.727799))
sketch5.addConstraint(Sketcher.Constraint("DistanceX", 38, 2, -1, 1, 33.242298))
sketch5.addConstraint(Sketcher.Constraint("DistanceX", 5, 2, 10, 2, 3.6708))
sketch5.addConstraint(Sketcher.Constraint("DistanceY", 0, 2, 12, 2, 1.5269))
sketch5.addConstraint(Sketcher.Constraint("DistanceY", 28, 2, 34, 2, 2.099301))
sketch5.addConstraint(Sketcher.Constraint("Distance", 16, 2.439818))
sketch5.addConstraint(Sketcher.Constraint("DistanceX", 9, 1, 9, 2, 1.943065))
sketch5.addConstraint(Sketcher.Constraint("DistanceX", 13, 1, 13, 2, 0.409894))
sketch5.addConstraint(Sketcher.Constraint("DistanceX", 17, 1, 17, 2, 0.448296))
sketch5.addConstraint(Sketcher.Constraint("DistanceX", 28, 1, 28, 2, 1.943065))
sketch5.addConstraint(Sketcher.Constraint("DistanceY", 0, 1, 0, 2, 0.409893))
sketch5.addConstraint(Sketcher.Constraint("DistanceY", 2, 1, 2, 2, 2.340103))
sketch5.addConstraint(Sketcher.Constraint("DistanceY", 6, 2, 6, 1, 1.846978))
sketch5.addConstraint(Sketcher.Constraint("DistanceY", 8, 2, 8, 1, 0.409893))
sketch5.addConstraint(Sketcher.Constraint("DistanceY", 10, 1, 10, 2, 0.299704))
sketch5.addConstraint(Sketcher.Constraint("DistanceY", 14, 1, 14, 2, 0.346155))
sketch5.addConstraint(Sketcher.Constraint("DistanceY", 19, 1, 19, 2, 0.409893))
sketch5.addConstraint(Sketcher.Constraint("DistanceY", 21, 1, 21, 2, 2.340103))
sketch5.addConstraint(Sketcher.Constraint("DistanceY", 25, 2, 25, 1, 1.846978))
sketch5.addConstraint(Sketcher.Constraint("DistanceY", 27, 2, 27, 1, 0.409893))
sketch5.addConstraint(Sketcher.Constraint("DistanceY", -1, 1, 2, 2, 25.278579))
sketch5.addConstraint(Sketcher.Constraint("DistanceX", 3, 2, -1, 1, 88.779772))
sketch5.addConstraint(Sketcher.Constraint("DistanceX", 22, 2, -1, 1, 36.485418))
pocket1 = doc.addObject("PartDesign::Pocket", "Pocket")
body.addObject(pocket1)
pocket1.Profile = sketch5
pocket1.Length = 0.3

doc.recompute()
